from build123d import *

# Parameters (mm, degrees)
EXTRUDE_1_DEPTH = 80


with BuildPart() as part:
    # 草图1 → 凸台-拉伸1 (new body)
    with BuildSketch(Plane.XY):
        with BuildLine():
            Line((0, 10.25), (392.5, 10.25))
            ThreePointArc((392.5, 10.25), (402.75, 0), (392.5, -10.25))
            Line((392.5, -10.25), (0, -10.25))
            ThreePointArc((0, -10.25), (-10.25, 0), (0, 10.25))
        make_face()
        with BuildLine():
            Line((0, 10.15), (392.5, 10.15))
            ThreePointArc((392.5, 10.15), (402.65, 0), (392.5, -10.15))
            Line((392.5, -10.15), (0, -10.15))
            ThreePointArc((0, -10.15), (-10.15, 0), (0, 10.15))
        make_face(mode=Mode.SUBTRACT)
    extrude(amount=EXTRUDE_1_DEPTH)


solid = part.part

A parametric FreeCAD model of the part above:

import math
import FreeCAD as App
import Part
import Sketcher

doc = App.newDocument("Part")
body = doc.addObject("PartDesign::Body", "Body")

# Sketch on XY plane
sketch1 = doc.addObject("Sketcher::SketchObject", "Sketch")
body.addObject(sketch1)
sketch1.AttachmentSupport = (doc.XY_Plane, [""])
sketch1.MapMode = "FlatFace"
sketch1.addGeometry([
    Part.LineSegment(App.Vector(392.5, 10.25, 0), App.Vector(0, 10.25, 0)),  # 0
    Part.ArcOfCircle(Part.Circle(App.Vector(0, 0, 0), App.Vector(0, 0, 1), 10.25), math.radians(90), math.radians(270)),  # 1
    Part.LineSegment(App.Vector(0, -10.25, 0), App.Vector(392.5, -10.25, 0)),  # 2
    Part.ArcOfCircle(Part.Circle(App.Vector(392.5, 0, 0), App.Vector(0, 0, 1), 10.25), math.radians(-90), math.radians(90)),  # 3
    Part.LineSegment(App.Vector(0, 10.15, 0), App.Vector(392.5, 10.15, 0)),  # 4
    Part.ArcOfCircle(Part.Circle(App.Vector(392.5, 0, 0), App.Vector(0, 0, 1), 10.15), math.radians(-90), math.radians(90)),  # 5
    Part.LineSegment(App.Vector(392.5, -10.15, 0), App.Vector(0, -10.15, 0)),  # 6
    Part.ArcOfCircle(Part.Circle(App.Vector(0, 0, 0), App.Vector(0, 0, 1), 10.15), math.radians(90), math.radians(270)),  # 7
], False)
sketch1.addConstraint([
    Sketcher.Constraint("Tangent", 0, 2, 1, 1),
    Sketcher.Constraint("Tangent", 1, 2, 2, 1),
    Sketcher.Constraint("Tangent", 2, 2, 3, 1),
    Sketcher.Constraint("Tangent", 3, 2, 0, 1),
    Sketcher.Constraint("Tangent", 4, 2, 5, 2),
    Sketcher.Constraint("Tangent", 5, 1, 6, 1),
    Sketcher.Constraint("Tangent", 6, 2, 7, 2),
    Sketcher.Constraint("Tangent", 7, 1, 4, 1),
    Sketcher.Constraint("Horizontal", 0),
    Sketcher.Constraint("Horizontal", 2),
    Sketcher.Constraint("Horizontal", 4),
    Sketcher.Constraint("Horizontal", 6),
    Sketcher.Constraint("Coincident", 1, 3, -1, 1),
    Sketcher.Constraint("Coincident", 7, 3, -1, 1),
    Sketcher.Constraint("Vertical", 5, 3, 2, 2),
    Sketcher.Constraint("Radius", 1, 10.25),
    Sketcher.Constraint("Radius", 5, 10.15),
    Sketcher.Constraint("DistanceX", 0, 2, 0, 1, 392.5),
])
pad1 = doc.addObject("PartDesign::Pad", "Pad")
body.addObject(pad1)
pad1.Profile = sketch1
pad1.Length = 80

doc.recompute()
